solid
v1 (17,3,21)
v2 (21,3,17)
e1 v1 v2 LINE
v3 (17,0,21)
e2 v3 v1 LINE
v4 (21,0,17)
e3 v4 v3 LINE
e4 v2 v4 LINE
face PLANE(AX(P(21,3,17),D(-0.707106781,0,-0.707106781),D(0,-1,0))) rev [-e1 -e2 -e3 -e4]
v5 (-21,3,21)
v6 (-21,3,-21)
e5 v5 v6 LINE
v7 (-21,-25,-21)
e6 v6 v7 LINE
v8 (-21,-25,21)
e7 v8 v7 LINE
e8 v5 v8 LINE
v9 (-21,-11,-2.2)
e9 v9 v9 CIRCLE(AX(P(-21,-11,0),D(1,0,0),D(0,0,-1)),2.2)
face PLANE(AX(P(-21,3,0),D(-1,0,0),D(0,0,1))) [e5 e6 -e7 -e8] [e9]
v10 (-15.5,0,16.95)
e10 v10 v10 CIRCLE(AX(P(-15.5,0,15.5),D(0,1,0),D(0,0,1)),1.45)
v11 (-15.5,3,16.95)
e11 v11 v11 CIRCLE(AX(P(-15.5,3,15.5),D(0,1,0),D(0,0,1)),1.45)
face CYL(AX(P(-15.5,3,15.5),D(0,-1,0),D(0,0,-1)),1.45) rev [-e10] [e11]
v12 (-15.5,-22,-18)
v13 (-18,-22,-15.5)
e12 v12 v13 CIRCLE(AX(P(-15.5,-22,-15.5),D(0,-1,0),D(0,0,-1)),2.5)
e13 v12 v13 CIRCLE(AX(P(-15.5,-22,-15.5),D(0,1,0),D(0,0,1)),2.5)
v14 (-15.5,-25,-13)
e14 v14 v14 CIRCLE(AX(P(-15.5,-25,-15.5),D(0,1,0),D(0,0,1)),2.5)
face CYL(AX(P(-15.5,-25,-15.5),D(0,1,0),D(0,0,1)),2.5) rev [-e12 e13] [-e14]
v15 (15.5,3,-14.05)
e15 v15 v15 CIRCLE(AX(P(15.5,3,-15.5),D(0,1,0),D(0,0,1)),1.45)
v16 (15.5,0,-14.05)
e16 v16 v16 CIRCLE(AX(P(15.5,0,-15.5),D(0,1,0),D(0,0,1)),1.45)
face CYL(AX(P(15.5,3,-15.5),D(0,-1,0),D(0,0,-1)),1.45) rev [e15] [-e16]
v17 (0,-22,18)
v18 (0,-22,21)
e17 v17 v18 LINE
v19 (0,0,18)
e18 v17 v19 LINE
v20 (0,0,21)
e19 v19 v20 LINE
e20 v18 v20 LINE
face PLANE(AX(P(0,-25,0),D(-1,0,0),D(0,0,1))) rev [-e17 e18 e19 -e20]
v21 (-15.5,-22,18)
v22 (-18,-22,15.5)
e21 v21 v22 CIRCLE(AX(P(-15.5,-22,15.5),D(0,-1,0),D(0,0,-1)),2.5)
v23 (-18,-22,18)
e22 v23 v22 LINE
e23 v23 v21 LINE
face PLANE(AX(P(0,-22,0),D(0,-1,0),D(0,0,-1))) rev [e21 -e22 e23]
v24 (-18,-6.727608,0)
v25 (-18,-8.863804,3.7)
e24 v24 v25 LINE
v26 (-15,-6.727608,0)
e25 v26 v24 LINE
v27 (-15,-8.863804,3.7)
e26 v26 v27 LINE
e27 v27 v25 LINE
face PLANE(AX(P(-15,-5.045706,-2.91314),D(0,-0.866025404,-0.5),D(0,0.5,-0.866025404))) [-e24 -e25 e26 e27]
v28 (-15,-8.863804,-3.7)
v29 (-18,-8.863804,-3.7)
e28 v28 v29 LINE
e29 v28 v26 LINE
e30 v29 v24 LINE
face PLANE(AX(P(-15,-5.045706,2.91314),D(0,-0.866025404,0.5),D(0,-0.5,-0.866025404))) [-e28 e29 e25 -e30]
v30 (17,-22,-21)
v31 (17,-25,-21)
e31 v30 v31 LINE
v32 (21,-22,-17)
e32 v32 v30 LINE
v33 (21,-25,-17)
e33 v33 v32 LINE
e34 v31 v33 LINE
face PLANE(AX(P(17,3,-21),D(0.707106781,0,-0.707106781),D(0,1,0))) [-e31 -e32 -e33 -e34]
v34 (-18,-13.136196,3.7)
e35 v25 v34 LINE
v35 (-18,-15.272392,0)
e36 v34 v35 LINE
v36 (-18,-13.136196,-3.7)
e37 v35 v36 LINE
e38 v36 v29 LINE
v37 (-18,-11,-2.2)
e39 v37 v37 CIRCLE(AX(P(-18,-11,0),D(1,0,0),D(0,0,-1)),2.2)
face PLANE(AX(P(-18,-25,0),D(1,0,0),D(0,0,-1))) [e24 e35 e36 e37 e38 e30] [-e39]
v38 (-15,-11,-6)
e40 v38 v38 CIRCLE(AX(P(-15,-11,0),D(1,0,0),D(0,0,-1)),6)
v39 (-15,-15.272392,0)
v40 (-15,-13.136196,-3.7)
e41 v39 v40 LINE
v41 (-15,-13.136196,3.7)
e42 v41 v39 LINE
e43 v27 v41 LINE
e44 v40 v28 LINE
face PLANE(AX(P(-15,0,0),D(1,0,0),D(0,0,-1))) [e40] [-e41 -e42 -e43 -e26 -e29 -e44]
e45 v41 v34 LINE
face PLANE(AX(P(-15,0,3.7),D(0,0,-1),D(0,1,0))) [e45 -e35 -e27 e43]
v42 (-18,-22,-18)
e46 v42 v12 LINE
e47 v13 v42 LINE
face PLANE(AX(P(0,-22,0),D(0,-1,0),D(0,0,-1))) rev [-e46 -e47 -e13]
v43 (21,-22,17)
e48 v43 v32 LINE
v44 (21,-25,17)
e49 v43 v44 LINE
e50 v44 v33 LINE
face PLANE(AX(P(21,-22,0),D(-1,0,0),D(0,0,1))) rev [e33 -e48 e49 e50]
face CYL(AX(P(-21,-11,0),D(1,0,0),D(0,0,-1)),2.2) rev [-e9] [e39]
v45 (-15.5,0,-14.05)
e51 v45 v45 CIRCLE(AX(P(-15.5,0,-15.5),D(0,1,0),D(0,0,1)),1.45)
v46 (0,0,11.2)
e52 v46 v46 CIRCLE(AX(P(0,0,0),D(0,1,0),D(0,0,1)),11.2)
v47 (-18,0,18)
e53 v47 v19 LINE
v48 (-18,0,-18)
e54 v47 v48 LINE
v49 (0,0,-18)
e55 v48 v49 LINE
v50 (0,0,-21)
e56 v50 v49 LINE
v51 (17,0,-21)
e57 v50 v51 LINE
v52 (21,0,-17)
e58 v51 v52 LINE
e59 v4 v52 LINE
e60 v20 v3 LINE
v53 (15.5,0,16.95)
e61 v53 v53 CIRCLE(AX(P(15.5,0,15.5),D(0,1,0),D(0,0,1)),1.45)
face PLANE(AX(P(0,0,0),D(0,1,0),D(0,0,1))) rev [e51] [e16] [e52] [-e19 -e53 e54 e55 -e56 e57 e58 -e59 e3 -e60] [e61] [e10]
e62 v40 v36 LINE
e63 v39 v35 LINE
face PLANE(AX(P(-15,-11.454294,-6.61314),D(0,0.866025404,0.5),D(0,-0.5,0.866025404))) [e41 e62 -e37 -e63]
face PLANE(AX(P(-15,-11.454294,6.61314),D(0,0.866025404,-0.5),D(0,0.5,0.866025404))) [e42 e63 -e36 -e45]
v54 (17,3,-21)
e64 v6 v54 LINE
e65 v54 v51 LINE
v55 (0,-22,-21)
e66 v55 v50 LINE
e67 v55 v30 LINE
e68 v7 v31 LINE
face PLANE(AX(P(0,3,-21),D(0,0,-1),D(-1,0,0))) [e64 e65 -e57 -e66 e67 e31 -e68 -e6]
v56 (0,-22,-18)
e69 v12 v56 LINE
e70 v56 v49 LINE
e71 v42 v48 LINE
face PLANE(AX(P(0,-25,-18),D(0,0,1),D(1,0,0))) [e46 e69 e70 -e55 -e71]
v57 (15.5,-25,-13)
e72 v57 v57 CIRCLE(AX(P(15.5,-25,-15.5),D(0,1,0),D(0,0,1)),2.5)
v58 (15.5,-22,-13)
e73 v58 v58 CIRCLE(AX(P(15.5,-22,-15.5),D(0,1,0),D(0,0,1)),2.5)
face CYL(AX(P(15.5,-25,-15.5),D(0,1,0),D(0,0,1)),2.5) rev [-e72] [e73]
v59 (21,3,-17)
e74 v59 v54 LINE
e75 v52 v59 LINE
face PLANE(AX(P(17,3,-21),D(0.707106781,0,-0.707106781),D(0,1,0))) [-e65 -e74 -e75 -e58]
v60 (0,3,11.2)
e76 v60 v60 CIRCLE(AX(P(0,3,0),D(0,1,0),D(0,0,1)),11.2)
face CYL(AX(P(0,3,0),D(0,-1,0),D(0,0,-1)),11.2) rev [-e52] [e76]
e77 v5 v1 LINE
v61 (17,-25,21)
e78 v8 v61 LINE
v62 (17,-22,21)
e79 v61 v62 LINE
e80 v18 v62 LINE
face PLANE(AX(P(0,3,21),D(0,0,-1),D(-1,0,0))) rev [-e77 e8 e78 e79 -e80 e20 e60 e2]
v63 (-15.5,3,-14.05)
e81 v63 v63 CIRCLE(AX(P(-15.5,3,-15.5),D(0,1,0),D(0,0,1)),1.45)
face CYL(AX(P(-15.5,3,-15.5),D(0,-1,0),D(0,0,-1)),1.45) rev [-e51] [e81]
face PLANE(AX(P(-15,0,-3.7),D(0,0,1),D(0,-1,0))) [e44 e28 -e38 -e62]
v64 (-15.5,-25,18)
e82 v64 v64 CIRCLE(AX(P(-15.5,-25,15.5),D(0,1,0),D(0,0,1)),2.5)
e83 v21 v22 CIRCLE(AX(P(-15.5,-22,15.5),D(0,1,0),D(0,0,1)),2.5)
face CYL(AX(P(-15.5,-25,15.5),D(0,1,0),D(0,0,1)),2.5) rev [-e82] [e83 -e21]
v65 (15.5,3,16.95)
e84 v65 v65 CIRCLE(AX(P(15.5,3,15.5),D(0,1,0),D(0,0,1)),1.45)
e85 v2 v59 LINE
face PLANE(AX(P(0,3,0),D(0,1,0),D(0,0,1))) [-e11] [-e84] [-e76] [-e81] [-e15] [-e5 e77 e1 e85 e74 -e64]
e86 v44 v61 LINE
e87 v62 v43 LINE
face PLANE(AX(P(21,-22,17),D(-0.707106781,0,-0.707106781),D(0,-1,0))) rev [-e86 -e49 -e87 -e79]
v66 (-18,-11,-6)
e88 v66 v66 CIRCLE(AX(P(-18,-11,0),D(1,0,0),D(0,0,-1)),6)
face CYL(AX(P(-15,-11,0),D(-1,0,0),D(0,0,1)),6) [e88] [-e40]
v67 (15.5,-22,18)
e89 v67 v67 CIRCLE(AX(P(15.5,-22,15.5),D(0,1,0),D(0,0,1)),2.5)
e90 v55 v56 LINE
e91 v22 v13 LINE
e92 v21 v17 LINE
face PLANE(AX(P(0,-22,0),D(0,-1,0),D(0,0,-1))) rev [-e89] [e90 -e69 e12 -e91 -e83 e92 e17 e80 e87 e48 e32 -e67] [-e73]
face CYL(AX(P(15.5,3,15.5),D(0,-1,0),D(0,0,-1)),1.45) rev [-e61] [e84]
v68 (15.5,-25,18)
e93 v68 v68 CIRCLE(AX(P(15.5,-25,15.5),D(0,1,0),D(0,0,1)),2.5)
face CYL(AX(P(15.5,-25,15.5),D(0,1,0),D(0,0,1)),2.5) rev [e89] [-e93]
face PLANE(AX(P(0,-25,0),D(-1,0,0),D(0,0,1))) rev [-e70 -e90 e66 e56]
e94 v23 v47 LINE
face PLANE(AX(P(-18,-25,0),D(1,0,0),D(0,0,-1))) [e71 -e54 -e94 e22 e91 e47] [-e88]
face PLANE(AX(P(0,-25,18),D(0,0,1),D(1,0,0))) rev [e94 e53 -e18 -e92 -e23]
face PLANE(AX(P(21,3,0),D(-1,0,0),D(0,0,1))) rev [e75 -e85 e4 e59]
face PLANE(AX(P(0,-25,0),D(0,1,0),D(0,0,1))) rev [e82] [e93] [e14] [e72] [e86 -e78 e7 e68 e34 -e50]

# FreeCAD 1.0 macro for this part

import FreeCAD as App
import Part
import Sketcher
from FreeCAD import Vector
Q = App.Units.Quantity


def edges_at(feature, points):
    """Names of the edges that pass closest to the given points."""
    edges = feature.Shape.Edges
    near = lambda p: min(range(len(edges)), key=lambda i: edges[i].distToShape(Part.Vertex(*p))[0])
    return sorted({f"Edge{near(p) + 1}" for p in points})

doc = App.newDocument("Part")
params = doc.addObject("Spreadsheet::Sheet", "Params")
for row, (alias, value) in enumerate([
    ("sketch1_diameter", "2.9 mm"),
    ("sketch1_diameter2", "22.4 mm"),
    ("sketch1_width", "42 mm"),
    ("pad1_length", "3 mm"),
    ("sketch2_width", "21 mm"),
    ("sketch2_width2", "18 mm"),
    ("sketch2_height", "3 mm"),
    ("sketch2_height2", "42 mm"),
    ("pad2_length", "25 mm"),
    ("sketch3_width", "42 mm"),
    ("pad3_length", "3 mm"),
    ("sketch4_diameter", "4.4 mm"),
    ("sketch5_diameter", "12 mm"),
    ("pad4_length", "3 mm"),
    ("sketch6_diameter", "5 mm"),
    ("chamfer_size", "4 mm"),
], start=1):
    params.set(f"A{row}", alias)
    params.set(f"B{row}", "=" + value)
    params.setAlias(f"B{row}", alias)

body = doc.addObject("PartDesign::Body", "Body")

sketch1 = body.newObject("Sketcher::SketchObject", "Sketch")
sketch1.AttachmentSupport = (doc.getObject("XZ_Plane"), [""])
sketch1.MapMode = "FlatFace"
sketch1.addGeometry(Part.LineSegment(Vector(-21, -21, 0), Vector(-21, 21, 0)), False)
sketch1.addGeometry(Part.LineSegment(Vector(-21, 21, 0), Vector(21, 21, 0)), False)
sketch1.addGeometry(Part.LineSegment(Vector(21, 21, 0), Vector(21, -21, 0)), False)
sketch1.addGeometry(Part.LineSegment(Vector(21, -21, 0), Vector(-21, -21, 0)), False)
sketch1.addGeometry(Part.Circle(Vector(-15.5, -15.5, 0), Vector(0, 0, 1), 1.45), False)
sketch1.addGeometry(Part.Circle(Vector(15.5, 15.5, 0), Vector(0, 0, 1), 1.45), False)
sketch1.addGeometry(Part.Circle(Vector(0, 0, 0), Vector(0, 0, 1), 11.2), False)
sketch1.addGeometry(Part.Circle(Vector(15.5, -15.5, 0), Vector(0, 0, 1), 1.45), False)
sketch1.addGeometry(Part.Circle(Vector(-15.5, 15.5, 0), Vector(0, 0, 1), 1.45), False)
sketch1.addConstraint(Sketcher.Constraint("Coincident", 0, 2, 1, 1))
sketch1.addConstraint(Sketcher.Constraint("Coincident", 1, 2, 2, 1))
sketch1.addConstraint(Sketcher.Constraint("Coincident", 2, 2, 3, 1))
sketch1.addConstraint(Sketcher.Constraint("Coincident", 3, 2, 0, 1))
sketch1.addConstraint(Sketcher.Constraint("Vertical", 0))
sketch1.addConstraint(Sketcher.Constraint("Horizontal", 1))
sketch1.addConstraint(Sketcher.Constraint("Vertical", 2))
sketch1.addConstraint(Sketcher.Constraint("Horizontal", 3))
sketch1.addConstraint(Sketcher.Constraint("Coincident", 6, 3, -1, 1))
sketch1.addConstraint(Sketcher.Constraint("Equal", 4, 5))
sketch1.addConstraint(Sketcher.Constraint("Equal", 5, 7))
sketch1.addConstraint(Sketcher.Constraint("Equal", 7, 8))
sketch1.addConstraint(Sketcher.Constraint("Symmetric", 4, 3, 5, 3, -1, 1))
sketch1.addConstraint(Sketcher.Constraint("Symmetric", 7, 3, 8, 3, -1, 1))
sketch1.addConstraint(Sketcher.Constraint("Symmetric", 0, 2, 2, 2, -1, 1))
sketch1.addConstraint(Sketcher.Constraint("Symmetric", 4, 3, 7, 3, -2))
sketch1.addConstraint(Sketcher.Constraint("Equal", 3, 0))
sketch1.addConstraint(Sketcher.Constraint("Diameter", 4, 2.9))
sketch1.addConstraint(Sketcher.Constraint("Diameter", 6, 22.4))
sketch1.addConstraint(Sketcher.Constraint("DistanceX", 1, 1, 1, 2, 42.0))
sketch1.addConstraint(Sketcher.Constraint("DistanceX", 4, 3, 5, 3, 31.0))
sketch1.addConstraint(Sketcher.Constraint("DistanceY", 4, 3, 5, 3, 31.0))
sketch1.setExpression("Constraints[17]", "Params.sketch1_diameter")
sketch1.setExpression("Constraints[18]", "Params.sketch1_diameter2")
sketch1.setExpression("Constraints[19]", "Params.sketch1_width")
pad1 = body.newObject("PartDesign::Pad", "Pad")
pad1.Profile = sketch1
pad1.setExpression("Length", "Params.pad1_length")
pad1.Reversed = True

sketch2 = body.newObject("Sketcher::SketchObject", "Sketch001")
sketch2.AttachmentSupport = (doc.getObject("XZ_Plane"), [""])
sketch2.MapMode = "FlatFace"
sketch2.addGeometry(Part.LineSegment(Vector(0, -18, 0), Vector(0, -21, 0)), False)
sketch2.addGeometry(Part.LineSegment(Vector(0, -21, 0), Vector(-21, -21, 0)), False)
sketch2.addGeometry(Part.LineSegment(Vector(-21, -21, 0), Vector(-21, 21, 0)), False)
sketch2.addGeometry(Part.LineSegment(Vector(-21, 21, 0), Vector(0, 21, 0)), False)
sketch2.addGeometry(Part.LineSegment(Vector(0, 21, 0), Vector(0, 18, 0)), False)
sketch2.addGeometry(Part.LineSegment(Vector(0, 18, 0), Vector(-18, 18, 0)), False)
sketch2.addGeometry(Part.LineSegment(Vector(-18, 18, 0), Vector(-18, -18, 0)), False)
sketch2.addGeometry(Part.LineSegment(Vector(-18, -18, 0), Vector(0, -18, 0)), False)
sketch2.addConstraint(Sketcher.Constraint("Coincident", 0, 2, 1, 1))
sketch2.addConstraint(Sketcher.Constraint("Coincident", 1, 2, 2, 1))
sketch2.addConstraint(Sketcher.Constraint("Coincident", 2, 2, 3, 1))
sketch2.addConstraint(Sketcher.Constraint("Coincident", 3, 2, 4, 1))
sketch2.addConstraint(Sketcher.Constraint("Coincident", 4, 2, 5, 1))
sketch2.addConstraint(Sketcher.Constraint("Coincident", 5, 2, 6, 1))
sketch2.addConstraint(Sketcher.Constraint("Coincident", 6, 2, 7, 1))
sketch2.addConstraint(Sketcher.Constraint("Coincident", 7, 2, 0, 1))
sketch2.addConstraint(Sketcher.Constraint("Vertical", 0))
sketch2.addConstraint(Sketcher.Constraint("Horizontal", 1))
sketch2.addConstraint(Sketcher.Constraint("Vertical", 2))
sketch2.addConstraint(Sketcher.Constraint("Horizontal", 3))
sketch2.addConstraint(Sketcher.Constraint("Vertical", 4))
sketch2.addConstraint(Sketcher.Constraint("Horizontal", 5))
sketch2.addConstraint(Sketcher.Constraint("Vertical", 6))
sketch2.addConstraint(Sketcher.Constraint("Horizontal", 7))
sketch2.addConstraint(Sketcher.Constraint("Symmetric", 0, 2, 3, 2, -1, 1))
sketch2.addConstraint(Sketcher.Constraint("Symmetric", 4, 2, 7, 2, -1))
sketch2.addConstraint(Sketcher.Constraint("DistanceX", 1, 2, 1, 1, 21.0))
sketch2.addConstraint(Sketcher.Constraint("DistanceX", 5, 2, 5, 1, 18.0))
sketch2.addConstraint(Sketcher.Constraint("DistanceY", 0, 2, 0, 1, 3.0))
sketch2.addConstraint(Sketcher.Constraint("DistanceY", 2, 1, 2, 2, 42.0))
sketch2.setExpression("Constraints[18]", "Params.sketch2_width")
sketch2.setExpression("Constraints[19]", "Params.sketch2_width2")
sketch2.setExpression("Constraints[20]", "Params.sketch2_height")
sketch2.setExpression("Constraints[21]", "Params.sketch2_height2")
pad2 = body.newObject("PartDesign::Pad", "Pad001")
pad2.Profile = sketch2
pad2.setExpression("Length", "Params.pad2_length")

sketch3 = body.newObject("Sketcher::SketchObject", "Sketch002")
sketch3.AttachmentSupport = (doc.getObject("XZ_Plane"), [""])
sketch3.MapMode = "FlatFace"
sketch3.AttachmentOffset = App.Placement(Vector(0, 0, 25), App.Rotation())
sketch3.addGeometry(Part.LineSegment(Vector(-21, -21, 0), Vector(-21, 21, 0)), False)
sketch3.addGeometry(Part.LineSegment(Vector(-21, 21, 0), Vector(21, 21, 0)), False)
sketch3.addGeometry(Part.LineSegment(Vector(21, 21, 0), Vector(21, -21, 0)), False)
sketch3.addGeometry(Part.LineSegment(Vector(21, -21, 0), Vector(-21, -21, 0)), False)
sketch3.addConstraint(Sketcher.Constraint("Coincident", 0, 2, 1, 1))
sketch3.addConstraint(Sketcher.Constraint("Coincident", 1, 2, 2, 1))
sketch3.addConstraint(Sketcher.Constraint("Coincident", 2, 2, 3, 1))
sketch3.addConstraint(Sketcher.Constraint("Coincident", 3, 2, 0, 1))
sketch3.addConstraint(Sketcher.Constraint("Vertical", 0))
sketch3.addConstraint(Sketcher.Constraint("Horizontal", 1))
sketch3.addConstraint(Sketcher.Constraint("Vertical", 2))
sketch3.addConstraint(Sketcher.Constraint("Horizontal", 3))
sketch3.addConstraint(Sketcher.Constraint("Symmetric", 0, 2, 2, 2, -1, 1))
sketch3.addConstraint(Sketcher.Constraint("Equal", 3, 0))
sketch3.addConstraint(Sketcher.Constraint("DistanceX", 1, 1, 1, 2, 42.0))
sketch3.setExpression("Constraints[10]", "Params.sketch3_width")
pad3 = body.newObject("PartDesign::Pad", "Pad002")
pad3.Profile = sketch3
pad3.setExpression("Length", "Params.pad3_length")
pad3.Reversed = True

sketch4 = body.newObject("Sketcher::SketchObject", "Sketch003")
sketch4.AttachmentSupport = (doc.getObject("YZ_Plane"), [""])
sketch4.MapMode = "FlatFace"
sketch4.AttachmentOffset = App.Placement(Vector(0, 0, -18), App.Rotation())
sketch4.addGeometry(Part.Circle(Vector(-11, 0, 0), Vector(0, 0, 1), 2.2), False)
sketch4.addConstraint(Sketcher.Constraint("PointOnObject", 0, 3, -1))
sketch4.addConstraint(Sketcher.Constraint("Diameter", 0, 4.4))
sketch4.addConstraint(Sketcher.Constraint("DistanceX", 0, 3, -1, 1, 11.0))
sketch4.setExpression("Constraints[1]", "Params.sketch4_diameter")
pocket1 = body.newObject("PartDesign::Pocket", "Pocket")
pocket1.Profile = sketch4
pocket1.Type = "ThroughAll"

sketch5 = body.newObject("Sketcher::SketchObject", "Sketch004")
sketch5.AttachmentSupport = (doc.getObject("YZ_Plane"), [""])
sketch5.MapMode = "FlatFace"
sketch5.AttachmentOffset = App.Placement(Vector(0, 0, -18), App.Rotation())
sketch5.addGeometry(Part.Circle(Vector(-11, 0, 0), Vector(0, 0, 1), 6), False)
sketch5.addGeometry(Part.LineSegment(Vector(-6.727608, 0, 0), Vector(-8.863804, -3.7, 0)), False)
sketch5.addGeometry(Part.LineSegment(Vector(-8.863804, -3.7, 0), Vector(-13.136196, -3.7, 0)), False)
sketch5.addGeometry(Part.LineSegment(Vector(-13.136196, -3.7, 0), Vector(-15.272392, 0, 0)), False)
sketch5.addGeometry(Part.LineSegment(Vector(-15.272392, 0, 0), Vector(-13.136196, 3.7, 0)), False)
sketch5.addGeometry(Part.LineSegment(Vector(-13.136196, 3.7, 0), Vector(-8.863804, 3.7, 0)), False)
sketch5.addGeometry(Part.LineSegment(Vector(-8.863804, 3.7, 0), Vector(-6.727608, 0, 0)), False)
sketch5.addConstraint(Sketcher.Constraint("Coincident", 1, 2, 2, 1))
sketch5.addConstraint(Sketcher.Constraint("Coincident", 2, 2, 3, 1))
sketch5.addConstraint(Sketcher.Constraint("Coincident", 3, 2, 4, 1))
sketch5.addConstraint(Sketcher.Constraint("Coincident", 4, 2, 5, 1))
sketch5.addConstraint(Sketcher.Constraint("Coincident", 5, 2, 6, 1))
sketch5.addConstraint(Sketcher.Constraint("Coincident", 6, 2, 1, 1))
sketch5.addConstraint(Sketcher.Constraint("Horizontal", 2))
sketch5.addConstraint(Sketcher.Constraint("Horizontal", 5))
sketch5.addConstraint(Sketcher.Constraint("Symmetric", 2, 2, 4, 2, -1))
sketch5.addConstraint(Sketcher.Constraint("PointOnObject", 0, 3, -1))
sketch5.addConstraint(Sketcher.Constraint("PointOnObject", 3, 2, -1))
sketch5.addConstraint(Sketcher.Constraint("PointOnObject", 6, 2, -1))
sketch5.addConstraint(Sketcher.Constraint("Parallel", 1, 4))
sketch5.addConstraint(Sketcher.Constraint("Parallel", 3, 6))
sketch5.addConstraint(Sketcher.Constraint("Diameter", 0, 12.0))
sketch5.addConstraint(Sketcher.Constraint("Angle", 1, Q("-120 deg")))
sketch5.addConstraint(Sketcher.Constraint("DistanceX", 0, 3, -1, 1, 11.0))
sketch5.addConstraint(Sketcher.Constraint("DistanceY", 1, 2, -1, 1, 3.7))
sketch5.addConstraint(Sketcher.Constraint("DistanceX", 2, 2, 2, 1, 4.272392))
sketch5.addConstraint(Sketcher.Constraint("DistanceX", 3, 2, -1, 1, 15.272392))
sketch5.setExpression("Constraints[14]", "Params.sketch5_diameter")
pad4 = body.newObject("PartDesign::Pad", "Pad003")
pad4.Profile = sketch5
pad4.setExpression("Length", "Params.pad4_length")

sketch6 = body.newObject("Sketcher::SketchObject", "Sketch005")
sketch6.AttachmentSupport = (doc.getObject("XZ_Plane"), [""])
sketch6.MapMode = "FlatFace"
sketch6.AttachmentOffset = App.Placement(Vector(0, 0, 22), App.Rotation())
sketch6.addGeometry(Part.Circle(Vector(15.5, -15.5, 0), Vector(0, 0, 1), 2.5), False)
sketch6.addGeometry(Part.Circle(Vector(15.5, 15.5, 0), Vector(0, 0, 1), 2.5), False)
sketch6.addGeometry(Part.Circle(Vector(-15.5, 15.5, 0), Vector(0, 0, 1), 2.5), False)
sketch6.addGeometry(Part.Circle(Vector(-15.5, -15.5, 0), Vector(0, 0, 1), 2.5), False)
sketch6.addConstraint(Sketcher.Constraint("Equal", 0, 1))
sketch6.addConstraint(Sketcher.Constraint("Equal", 1, 2))
sketch6.addConstraint(Sketcher.Constraint("Equal", 2, 3))
sketch6.addConstraint(Sketcher.Constraint("Symmetric", 0, 3, 2, 3, -1, 1))
sketch6.addConstraint(Sketcher.Constraint("Symmetric", 1, 3, 3, 3, -1, 1))
sketch6.addConstraint(Sketcher.Constraint("Symmetric", 1, 3, 2, 3, -2))
sketch6.addConstraint(Sketcher.Constraint("Diameter", 0, 5.0))
sketch6.addConstraint(Sketcher.Constraint("DistanceY", 0, 3, 1, 3, 31.0))
sketch6.addConstraint(Sketcher.Constraint("DistanceX", 2, 3, 1, 3, 31.0))
sketch6.setExpression("Constraints[6]", "Params.sketch6_diameter")
pocket2 = body.newObject("PartDesign::Pocket", "Pocket001")
pocket2.Profile = sketch6
pocket2.Type = "ThroughAll"
pocket2.Reversed = True
doc.recompute()

chamfer = body.newObject("PartDesign::Chamfer", "Chamfer")
chamfer.Base = (pocket2, edges_at(pocket2, [
    (21, 1.5, -21),
    (21, 1.5, 21),
    (21, -23.5, -21),
    (21, -23.5, 21),
]))
chamfer.setExpression("Size", "Params.chamfer_size")

doc.recompute()
